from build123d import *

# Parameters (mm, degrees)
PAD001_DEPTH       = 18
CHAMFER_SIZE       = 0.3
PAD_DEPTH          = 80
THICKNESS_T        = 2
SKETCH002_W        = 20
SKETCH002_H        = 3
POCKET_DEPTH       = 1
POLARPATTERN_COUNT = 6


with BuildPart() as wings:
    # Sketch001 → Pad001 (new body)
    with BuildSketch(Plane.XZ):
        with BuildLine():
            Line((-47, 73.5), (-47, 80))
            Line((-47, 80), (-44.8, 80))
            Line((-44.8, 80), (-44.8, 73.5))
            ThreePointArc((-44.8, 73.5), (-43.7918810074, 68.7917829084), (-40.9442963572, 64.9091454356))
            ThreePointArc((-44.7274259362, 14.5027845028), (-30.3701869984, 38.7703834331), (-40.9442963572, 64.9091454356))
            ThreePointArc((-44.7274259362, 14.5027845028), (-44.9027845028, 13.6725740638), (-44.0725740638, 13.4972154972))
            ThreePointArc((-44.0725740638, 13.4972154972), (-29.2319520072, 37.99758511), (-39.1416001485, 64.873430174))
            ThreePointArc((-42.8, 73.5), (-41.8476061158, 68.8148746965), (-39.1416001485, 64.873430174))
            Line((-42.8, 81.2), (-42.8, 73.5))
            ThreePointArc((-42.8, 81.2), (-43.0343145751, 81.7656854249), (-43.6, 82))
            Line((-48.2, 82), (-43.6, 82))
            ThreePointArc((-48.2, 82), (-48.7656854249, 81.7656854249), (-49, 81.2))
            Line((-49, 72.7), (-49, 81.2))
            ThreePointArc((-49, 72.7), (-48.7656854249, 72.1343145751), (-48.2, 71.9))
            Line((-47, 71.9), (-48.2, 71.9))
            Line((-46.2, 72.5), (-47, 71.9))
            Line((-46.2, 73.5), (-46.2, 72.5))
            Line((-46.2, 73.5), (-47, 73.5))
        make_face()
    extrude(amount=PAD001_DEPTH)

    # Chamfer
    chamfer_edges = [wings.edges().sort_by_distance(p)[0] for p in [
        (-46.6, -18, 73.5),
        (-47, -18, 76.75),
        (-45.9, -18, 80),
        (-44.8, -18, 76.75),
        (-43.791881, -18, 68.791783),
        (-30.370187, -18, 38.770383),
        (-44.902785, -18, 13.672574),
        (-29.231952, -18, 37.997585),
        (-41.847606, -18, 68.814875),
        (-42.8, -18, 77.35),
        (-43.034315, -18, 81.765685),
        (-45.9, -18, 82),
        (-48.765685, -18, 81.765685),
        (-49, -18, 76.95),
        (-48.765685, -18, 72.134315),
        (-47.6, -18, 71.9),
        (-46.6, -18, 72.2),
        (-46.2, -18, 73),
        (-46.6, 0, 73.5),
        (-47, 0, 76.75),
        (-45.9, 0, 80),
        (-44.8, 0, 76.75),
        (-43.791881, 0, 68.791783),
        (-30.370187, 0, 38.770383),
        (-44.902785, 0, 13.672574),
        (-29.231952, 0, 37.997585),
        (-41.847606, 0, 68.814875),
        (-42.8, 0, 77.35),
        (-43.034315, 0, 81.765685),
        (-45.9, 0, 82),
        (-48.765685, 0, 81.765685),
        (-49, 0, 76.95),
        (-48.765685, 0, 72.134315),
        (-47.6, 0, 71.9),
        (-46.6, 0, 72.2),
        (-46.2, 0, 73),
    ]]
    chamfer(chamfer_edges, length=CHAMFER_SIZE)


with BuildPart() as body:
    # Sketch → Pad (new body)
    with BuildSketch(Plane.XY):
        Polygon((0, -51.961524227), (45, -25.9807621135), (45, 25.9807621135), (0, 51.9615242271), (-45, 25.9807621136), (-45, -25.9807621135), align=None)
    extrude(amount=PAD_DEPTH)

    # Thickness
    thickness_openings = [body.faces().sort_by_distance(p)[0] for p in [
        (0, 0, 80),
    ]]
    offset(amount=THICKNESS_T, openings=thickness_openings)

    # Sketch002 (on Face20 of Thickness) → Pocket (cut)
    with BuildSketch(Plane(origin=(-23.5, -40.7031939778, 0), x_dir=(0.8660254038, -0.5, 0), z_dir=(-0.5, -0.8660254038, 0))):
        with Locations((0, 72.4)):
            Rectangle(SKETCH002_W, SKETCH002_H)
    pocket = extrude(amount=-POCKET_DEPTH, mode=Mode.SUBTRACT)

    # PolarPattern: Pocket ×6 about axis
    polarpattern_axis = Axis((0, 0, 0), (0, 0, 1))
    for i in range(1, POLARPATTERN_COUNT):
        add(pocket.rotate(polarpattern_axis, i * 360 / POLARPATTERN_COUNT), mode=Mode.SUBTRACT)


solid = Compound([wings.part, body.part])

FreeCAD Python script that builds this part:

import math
import FreeCAD as App
import Part
import Sketcher
Q = App.Units.Quantity


def edges_at(feature, points):
    """Names of the edges that pass closest to the given points."""
    edges = feature.Shape.Edges
    near = lambda p: min(range(len(edges)), key=lambda i: edges[i].distToShape(Part.Vertex(*p))[0])
    return sorted({f"Edge{near(p) + 1}" for p in points})


def faces_at(feature, points):
    """Names of the faces that lie closest to the given points."""
    faces = feature.Shape.Faces
    near = lambda p: min(range(len(faces)), key=lambda i: faces[i].distToShape(Part.Vertex(*p))[0])
    return sorted({f"Face{near(p) + 1}" for p in points})

doc = App.newDocument("Part")
body = doc.addObject("PartDesign::Body", "Body")

# Sketch on XZ plane
sketch1 = body.newObject("Sketcher::SketchObject", "Sketch")
sketch1.AttachmentSupport = (doc.getObject("XZ_Plane"), [""])
sketch1.MapMode = "FlatFace"
sketch1.addGeometry(Part.LineSegment(App.Vector(-47, 73.5, 0), App.Vector(-47, 80, 0)), False)
sketch1.addGeometry(Part.LineSegment(App.Vector(-47, 80, 0), App.Vector(-44.8, 80, 0)), False)
sketch1.addGeometry(Part.LineSegment(App.Vector(-44.8, 80, 0), App.Vector(-44.8, 73.5, 0)), False)
sketch1.addGeometry(Part.ArcOfCircle(Part.Circle(App.Vector(-33.3, 73.5, 0), App.Vector(0, 0, 1), 11.5), math.radians(180), math.radians(228)), False)
sketch1.addGeometry(Part.ArcOfCircle(Part.Circle(App.Vector(-62.1, 41.2, 0), App.Vector(0, 0, 1), 31.8), math.radians(-57), math.radians(48)), False)
sketch1.addGeometry(Part.ArcOfCircle(Part.Circle(App.Vector(-44.4, 14, 0), App.Vector(0, 0, 1), 0.6), math.radians(123), math.radians(303)), False)
sketch1.addGeometry(Part.ArcOfCircle(Part.Circle(App.Vector(-62.1, 41.2, 0), App.Vector(0, 0, 1), 33), math.radians(-57), math.radians(46)), False)
sketch1.addGeometry(Part.ArcOfCircle(Part.Circle(App.Vector(-30.8, 73.5, 0), App.Vector(0, 0, 1), 12), math.radians(180), math.radians(226)), False)
sketch1.addGeometry(Part.LineSegment(App.Vector(-42.8, 73.5, 0), App.Vector(-42.8, 81.2, 0)), False)
sketch1.addGeometry(Part.ArcOfCircle(Part.Circle(App.Vector(-43.6, 81.2, 0), App.Vector(0, 0, 1), 0.8), math.radians(0), math.radians(90)), False)
sketch1.addGeometry(Part.LineSegment(App.Vector(-43.6, 82, 0), App.Vector(-48.2, 82, 0)), False)
sketch1.addGeometry(Part.ArcOfCircle(Part.Circle(App.Vector(-48.2, 81.2, 0), App.Vector(0, 0, 1), 0.8), math.radians(90), math.radians(180)), False)
sketch1.addGeometry(Part.LineSegment(App.Vector(-49, 81.2, 0), App.Vector(-49, 72.7, 0)), False)
sketch1.addGeometry(Part.ArcOfCircle(Part.Circle(App.Vector(-48.2, 72.7, 0), App.Vector(0, 0, 1), 0.8), math.radians(180), math.radians(270)), False)
sketch1.addGeometry(Part.LineSegment(App.Vector(-48.2, 71.9, 0), App.Vector(-47, 71.9, 0)), False)
sketch1.addGeometry(Part.LineSegment(App.Vector(-47, 71.9, 0), App.Vector(-46.2, 72.5, 0)), False)
sketch1.addGeometry(Part.LineSegment(App.Vector(-46.2, 72.5, 0), App.Vector(-46.2, 73.5, 0)), False)
sketch1.addGeometry(Part.LineSegment(App.Vector(-46.2, 73.5, 0), App.Vector(-47, 73.5, 0)), False)
sketch1.addConstraint(Sketcher.Constraint("Coincident", 0, 2, 1, 1))
sketch1.addConstraint(Sketcher.Constraint("Coincident", 1, 2, 2, 1))
sketch1.addConstraint(Sketcher.Constraint("Tangent", 2, 2, 3, 1))
sketch1.addConstraint(Sketcher.Constraint("Tangent", 3, 2, 4, 2))
sketch1.addConstraint(Sketcher.Constraint("Tangent", 4, 1, 5, 1))
sketch1.addConstraint(Sketcher.Constraint("Tangent", 5, 2, 6, 1))
sketch1.addConstraint(Sketcher.Constraint("Tangent", 6, 2, 7, 2))
sketch1.addConstraint(Sketcher.Constraint("Tangent", 7, 1, 8, 1))
sketch1.addConstraint(Sketcher.Constraint("Tangent", 8, 2, 9, 1))
sketch1.addConstraint(Sketcher.Constraint("Tangent", 9, 2, 10, 1))
sketch1.addConstraint(Sketcher.Constraint("Tangent", 10, 2, 11, 1))
sketch1.addConstraint(Sketcher.Constraint("Tangent", 11, 2, 12, 1))
sketch1.addConstraint(Sketcher.Constraint("Tangent", 12, 2, 13, 1))
sketch1.addConstraint(Sketcher.Constraint("Tangent", 13, 2, 14, 1))
sketch1.addConstraint(Sketcher.Constraint("Coincident", 14, 2, 15, 1))
sketch1.addConstraint(Sketcher.Constraint("Coincident", 15, 2, 16, 1))
sketch1.addConstraint(Sketcher.Constraint("Coincident", 16, 2, 17, 1))
sketch1.addConstraint(Sketcher.Constraint("Coincident", 17, 2, 0, 1))
sketch1.addConstraint(Sketcher.Constraint("Vertical", 0))
sketch1.addConstraint(Sketcher.Constraint("Horizontal", 1))
sketch1.addConstraint(Sketcher.Constraint("Vertical", 2))
sketch1.addConstraint(Sketcher.Constraint("Vertical", 8))
sketch1.addConstraint(Sketcher.Constraint("Horizontal", 10))
sketch1.addConstraint(Sketcher.Constraint("Vertical", 12))
sketch1.addConstraint(Sketcher.Constraint("Horizontal", 14))
sketch1.addConstraint(Sketcher.Constraint("Vertical", 16))
sketch1.addConstraint(Sketcher.Constraint("Horizontal", 17))
sketch1.addConstraint(Sketcher.Constraint("Coincident", 6, 3, 4, 3))
sketch1.addConstraint(Sketcher.Constraint("Equal", 9, 11))
sketch1.addConstraint(Sketcher.Constraint("Equal", 11, 13))
sketch1.addConstraint(Sketcher.Constraint("Horizontal", 3, 3, 7, 3))
sketch1.addConstraint(Sketcher.Constraint("Horizontal", 7, 1, 16, 2))
sketch1.addConstraint(Sketcher.Constraint("Vertical", 0, 2, 14, 2))
sketch1.addConstraint(Sketcher.Constraint("Radius", 6, 33.0))
sketch1.addConstraint(Sketcher.Constraint("Radius", 7, 12.0))
sketch1.addConstraint(Sketcher.Constraint("Radius", 4, 31.8))
sketch1.addConstraint(Sketcher.Constraint("Radius", 9, 0.8))
sketch1.addConstraint(Sketcher.Constraint("DistanceY", 16, 1, 16, 2, 1.0))
sketch1.addConstraint(Sketcher.Constraint("Distance", 15, 1.0))
sketch1.addConstraint(Sketcher.Constraint("DistanceX", 1, 1, 1, 2, 2.2))
sketch1.addConstraint(Sketcher.Constraint("DistanceX", 10, 2, 10, 1, 4.6))
sketch1.addConstraint(Sketcher.Constraint("DistanceX", 14, 1, 14, 2, 1.2))
sketch1.addConstraint(Sketcher.Constraint("DistanceX", 17, 2, 17, 1, 0.8))
sketch1.addConstraint(Sketcher.Constraint("DistanceY", 0, 1, 0, 2, 6.5))
sketch1.addConstraint(Sketcher.Constraint("DistanceY", 8, 1, 8, 2, 7.7))
sketch1.addConstraint(Sketcher.Constraint("DistanceY", -1, 1, 5, 3, 14.0))
sketch1.addConstraint(Sketcher.Constraint("DistanceX", 0, 2, -1, 1, 47.0))
sketch1.addConstraint(Sketcher.Constraint("DistanceY", -1, 1, 0, 2, 80.0))
sketch1.addConstraint(Sketcher.Constraint("DistanceX", 5, 3, -1, 1, 44.4))
pad1 = body.newObject("PartDesign::Pad", "Pad")
pad1.Profile = sketch1
pad1.Length = 18
doc.recompute()

chamfer = body.newObject("PartDesign::Chamfer", "Chamfer")
chamfer.Base = (pad1, edges_at(pad1, [
    (-46.6, -18, 73.5),
    (-47, -18, 76.75),
    (-45.9, -18, 80),
    (-44.8, -18, 76.75),
    (-43.792, -18, 68.792),
    (-30.37, -18, 38.77),
    (-44.903, -18, 13.673),
    (-29.232, -18, 37.998),
    (-41.848, -18, 68.815),
    (-42.8, -18, 77.35),
    (-43.034, -18, 81.766),
    (-45.9, -18, 82),
    (-48.766, -18, 81.766),
    (-49, -18, 76.95),
    (-48.766, -18, 72.134),
    (-47.6, -18, 71.9),
    (-46.6, -18, 72.2),
    (-46.2, -18, 73),
    (-46.6, 0, 73.5),
    (-47, 0, 76.75),
    (-45.9, 0, 80),
    (-44.8, 0, 76.75),
    (-43.792, 0, 68.792),
    (-30.37, 0, 38.77),
    (-44.903, 0, 13.673),
    (-29.232, 0, 37.998),
    (-41.848, 0, 68.815),
    (-42.8, 0, 77.35),
    (-43.034, 0, 81.766),
    (-45.9, 0, 82),
    (-48.766, 0, 81.766),
    (-49, 0, 76.95),
    (-48.766, 0, 72.134),
    (-47.6, 0, 71.9),
    (-46.6, 0, 72.2),
    (-46.2, 0, 73),
]))
chamfer.Size = 0.3
body2 = doc.addObject("PartDesign::Body", "Body001")

# Sketch on XY plane
sketch2 = body2.newObject("Sketcher::SketchObject", "Sketch001")
sketch2.AttachmentSupport = (doc.getObject("XY_Plane001"), [""])
sketch2.MapMode = "FlatFace"
sketch2.addGeometry(Part.LineSegment(App.Vector(0, -52, 0), App.Vector(45, -26, 0)), False)
sketch2.addGeometry(Part.LineSegment(App.Vector(45, -26, 0), App.Vector(45, 26, 0)), False)
sketch2.addGeometry(Part.LineSegment(App.Vector(45, 26, 0), App.Vector(0, 52, 0)), False)
sketch2.addGeometry(Part.LineSegment(App.Vector(0, 52, 0), App.Vector(-45, 26, 0)), False)
sketch2.addGeometry(Part.LineSegment(App.Vector(-45, 26, 0), App.Vector(-45, -26, 0)), False)
sketch2.addGeometry(Part.LineSegment(App.Vector(-45, -26, 0), App.Vector(0, -52, 0)), False)
sketch2.addConstraint(Sketcher.Constraint("Coincident", 0, 2, 1, 1))
sketch2.addConstraint(Sketcher.Constraint("Coincident", 1, 2, 2, 1))
sketch2.addConstraint(Sketcher.Constraint("Coincident", 2, 2, 3, 1))
sketch2.addConstraint(Sketcher.Constraint("Coincident", 3, 2, 4, 1))
sketch2.addConstraint(Sketcher.Constraint("Coincident", 4, 2, 5, 1))
sketch2.addConstraint(Sketcher.Constraint("Coincident", 5, 2, 0, 1))
sketch2.addConstraint(Sketcher.Constraint("Vertical", 1))
sketch2.addConstraint(Sketcher.Constraint("Vertical", 4))
sketch2.addConstraint(Sketcher.Constraint("Symmetric", 0, 2, 3, 2, -1, 1))
sketch2.addConstraint(Sketcher.Constraint("Symmetric", 2, 2, 5, 2, -1, 1))
sketch2.addConstraint(Sketcher.Constraint("PointOnObject", 2, 2, -2))
sketch2.addConstraint(Sketcher.Constraint("Parallel", 2, 5))
sketch2.addConstraint(Sketcher.Constraint("Horizontal", 1, 2, 3, 2))
sketch2.addConstraint(Sketcher.Constraint("Angle", 0, Q("30 deg")))
sketch2.addConstraint(Sketcher.Constraint("DistanceX", -1, 1, 0, 2, 45.0))
sketch2.addConstraint(Sketcher.Constraint("DistanceY", 1, 1, 1, 2, 51.961524))
pad2 = body2.newObject("PartDesign::Pad", "Pad001")
pad2.Profile = sketch2
pad2.Length = 80
doc.recompute()

thickness = body2.newObject("PartDesign::Thickness", "Thickness")
thickness.Base = (pad2, faces_at(pad2, [(0, 0, 80)]))
thickness.Value = 2
thickness.Reversed = False
thickness.Join = "Arc"

# Sketch on an angled plane
sketch3 = body2.newObject("Sketcher::SketchObject", "Sketch002")
sketch3.Placement = App.Placement(App.Vector(-23.5, -40.703194, 0), App.Rotation(App.Vector(0.866025404, -0.5, 0), App.Vector(0, 0, 1), App.Vector(-0.5, -0.866025404, 0), "ZXY"))
sketch3.addGeometry(Part.LineSegment(App.Vector(-10, 73.9, 0), App.Vector(-10, 70.9, 0)), False)
sketch3.addGeometry(Part.LineSegment(App.Vector(-10, 70.9, 0), App.Vector(10, 70.9, 0)), False)
sketch3.addGeometry(Part.LineSegment(App.Vector(10, 70.9, 0), App.Vector(10, 73.9, 0)), False)
sketch3.addGeometry(Part.LineSegment(App.Vector(10, 73.9, 0), App.Vector(-10, 73.9, 0)), False)
sketch3.addConstraint(Sketcher.Constraint("Coincident", 0, 2, 1, 1))
sketch3.addConstraint(Sketcher.Constraint("Coincident", 1, 2, 2, 1))
sketch3.addConstraint(Sketcher.Constraint("Coincident", 2, 2, 3, 1))
sketch3.addConstraint(Sketcher.Constraint("Coincident", 3, 2, 0, 1))
sketch3.addConstraint(Sketcher.Constraint("Vertical", 0))
sketch3.addConstraint(Sketcher.Constraint("Horizontal", 1))
sketch3.addConstraint(Sketcher.Constraint("Vertical", 2))
sketch3.addConstraint(Sketcher.Constraint("Horizontal", 3))
sketch3.addConstraint(Sketcher.Constraint("DistanceX", 1, 1, 1, 2, 20.0))
sketch3.addConstraint(Sketcher.Constraint("DistanceY", 0, 2, 0, 1, 3.0))
sketch3.addConstraint(Sketcher.Constraint("DistanceX", 0, 2, -1, 1, 10.0))
sketch3.addConstraint(Sketcher.Constraint("DistanceY", -1, 1, 0, 2, 70.9))
pocket1 = body2.newObject("PartDesign::Pocket", "Pocket")
pocket1.Profile = sketch3
pocket1.Length = 1
doc.recompute()

polarpattern = body2.newObject("PartDesign::PolarPattern", "PolarPattern")
polarpattern.Originals = [pocket1]
polarpattern.Axis = (doc.getObject("Z_Axis001"), [""])
polarpattern.Angle = 360
polarpattern.Occurrences = 6
body2.Tip = polarpattern

doc.recompute()
